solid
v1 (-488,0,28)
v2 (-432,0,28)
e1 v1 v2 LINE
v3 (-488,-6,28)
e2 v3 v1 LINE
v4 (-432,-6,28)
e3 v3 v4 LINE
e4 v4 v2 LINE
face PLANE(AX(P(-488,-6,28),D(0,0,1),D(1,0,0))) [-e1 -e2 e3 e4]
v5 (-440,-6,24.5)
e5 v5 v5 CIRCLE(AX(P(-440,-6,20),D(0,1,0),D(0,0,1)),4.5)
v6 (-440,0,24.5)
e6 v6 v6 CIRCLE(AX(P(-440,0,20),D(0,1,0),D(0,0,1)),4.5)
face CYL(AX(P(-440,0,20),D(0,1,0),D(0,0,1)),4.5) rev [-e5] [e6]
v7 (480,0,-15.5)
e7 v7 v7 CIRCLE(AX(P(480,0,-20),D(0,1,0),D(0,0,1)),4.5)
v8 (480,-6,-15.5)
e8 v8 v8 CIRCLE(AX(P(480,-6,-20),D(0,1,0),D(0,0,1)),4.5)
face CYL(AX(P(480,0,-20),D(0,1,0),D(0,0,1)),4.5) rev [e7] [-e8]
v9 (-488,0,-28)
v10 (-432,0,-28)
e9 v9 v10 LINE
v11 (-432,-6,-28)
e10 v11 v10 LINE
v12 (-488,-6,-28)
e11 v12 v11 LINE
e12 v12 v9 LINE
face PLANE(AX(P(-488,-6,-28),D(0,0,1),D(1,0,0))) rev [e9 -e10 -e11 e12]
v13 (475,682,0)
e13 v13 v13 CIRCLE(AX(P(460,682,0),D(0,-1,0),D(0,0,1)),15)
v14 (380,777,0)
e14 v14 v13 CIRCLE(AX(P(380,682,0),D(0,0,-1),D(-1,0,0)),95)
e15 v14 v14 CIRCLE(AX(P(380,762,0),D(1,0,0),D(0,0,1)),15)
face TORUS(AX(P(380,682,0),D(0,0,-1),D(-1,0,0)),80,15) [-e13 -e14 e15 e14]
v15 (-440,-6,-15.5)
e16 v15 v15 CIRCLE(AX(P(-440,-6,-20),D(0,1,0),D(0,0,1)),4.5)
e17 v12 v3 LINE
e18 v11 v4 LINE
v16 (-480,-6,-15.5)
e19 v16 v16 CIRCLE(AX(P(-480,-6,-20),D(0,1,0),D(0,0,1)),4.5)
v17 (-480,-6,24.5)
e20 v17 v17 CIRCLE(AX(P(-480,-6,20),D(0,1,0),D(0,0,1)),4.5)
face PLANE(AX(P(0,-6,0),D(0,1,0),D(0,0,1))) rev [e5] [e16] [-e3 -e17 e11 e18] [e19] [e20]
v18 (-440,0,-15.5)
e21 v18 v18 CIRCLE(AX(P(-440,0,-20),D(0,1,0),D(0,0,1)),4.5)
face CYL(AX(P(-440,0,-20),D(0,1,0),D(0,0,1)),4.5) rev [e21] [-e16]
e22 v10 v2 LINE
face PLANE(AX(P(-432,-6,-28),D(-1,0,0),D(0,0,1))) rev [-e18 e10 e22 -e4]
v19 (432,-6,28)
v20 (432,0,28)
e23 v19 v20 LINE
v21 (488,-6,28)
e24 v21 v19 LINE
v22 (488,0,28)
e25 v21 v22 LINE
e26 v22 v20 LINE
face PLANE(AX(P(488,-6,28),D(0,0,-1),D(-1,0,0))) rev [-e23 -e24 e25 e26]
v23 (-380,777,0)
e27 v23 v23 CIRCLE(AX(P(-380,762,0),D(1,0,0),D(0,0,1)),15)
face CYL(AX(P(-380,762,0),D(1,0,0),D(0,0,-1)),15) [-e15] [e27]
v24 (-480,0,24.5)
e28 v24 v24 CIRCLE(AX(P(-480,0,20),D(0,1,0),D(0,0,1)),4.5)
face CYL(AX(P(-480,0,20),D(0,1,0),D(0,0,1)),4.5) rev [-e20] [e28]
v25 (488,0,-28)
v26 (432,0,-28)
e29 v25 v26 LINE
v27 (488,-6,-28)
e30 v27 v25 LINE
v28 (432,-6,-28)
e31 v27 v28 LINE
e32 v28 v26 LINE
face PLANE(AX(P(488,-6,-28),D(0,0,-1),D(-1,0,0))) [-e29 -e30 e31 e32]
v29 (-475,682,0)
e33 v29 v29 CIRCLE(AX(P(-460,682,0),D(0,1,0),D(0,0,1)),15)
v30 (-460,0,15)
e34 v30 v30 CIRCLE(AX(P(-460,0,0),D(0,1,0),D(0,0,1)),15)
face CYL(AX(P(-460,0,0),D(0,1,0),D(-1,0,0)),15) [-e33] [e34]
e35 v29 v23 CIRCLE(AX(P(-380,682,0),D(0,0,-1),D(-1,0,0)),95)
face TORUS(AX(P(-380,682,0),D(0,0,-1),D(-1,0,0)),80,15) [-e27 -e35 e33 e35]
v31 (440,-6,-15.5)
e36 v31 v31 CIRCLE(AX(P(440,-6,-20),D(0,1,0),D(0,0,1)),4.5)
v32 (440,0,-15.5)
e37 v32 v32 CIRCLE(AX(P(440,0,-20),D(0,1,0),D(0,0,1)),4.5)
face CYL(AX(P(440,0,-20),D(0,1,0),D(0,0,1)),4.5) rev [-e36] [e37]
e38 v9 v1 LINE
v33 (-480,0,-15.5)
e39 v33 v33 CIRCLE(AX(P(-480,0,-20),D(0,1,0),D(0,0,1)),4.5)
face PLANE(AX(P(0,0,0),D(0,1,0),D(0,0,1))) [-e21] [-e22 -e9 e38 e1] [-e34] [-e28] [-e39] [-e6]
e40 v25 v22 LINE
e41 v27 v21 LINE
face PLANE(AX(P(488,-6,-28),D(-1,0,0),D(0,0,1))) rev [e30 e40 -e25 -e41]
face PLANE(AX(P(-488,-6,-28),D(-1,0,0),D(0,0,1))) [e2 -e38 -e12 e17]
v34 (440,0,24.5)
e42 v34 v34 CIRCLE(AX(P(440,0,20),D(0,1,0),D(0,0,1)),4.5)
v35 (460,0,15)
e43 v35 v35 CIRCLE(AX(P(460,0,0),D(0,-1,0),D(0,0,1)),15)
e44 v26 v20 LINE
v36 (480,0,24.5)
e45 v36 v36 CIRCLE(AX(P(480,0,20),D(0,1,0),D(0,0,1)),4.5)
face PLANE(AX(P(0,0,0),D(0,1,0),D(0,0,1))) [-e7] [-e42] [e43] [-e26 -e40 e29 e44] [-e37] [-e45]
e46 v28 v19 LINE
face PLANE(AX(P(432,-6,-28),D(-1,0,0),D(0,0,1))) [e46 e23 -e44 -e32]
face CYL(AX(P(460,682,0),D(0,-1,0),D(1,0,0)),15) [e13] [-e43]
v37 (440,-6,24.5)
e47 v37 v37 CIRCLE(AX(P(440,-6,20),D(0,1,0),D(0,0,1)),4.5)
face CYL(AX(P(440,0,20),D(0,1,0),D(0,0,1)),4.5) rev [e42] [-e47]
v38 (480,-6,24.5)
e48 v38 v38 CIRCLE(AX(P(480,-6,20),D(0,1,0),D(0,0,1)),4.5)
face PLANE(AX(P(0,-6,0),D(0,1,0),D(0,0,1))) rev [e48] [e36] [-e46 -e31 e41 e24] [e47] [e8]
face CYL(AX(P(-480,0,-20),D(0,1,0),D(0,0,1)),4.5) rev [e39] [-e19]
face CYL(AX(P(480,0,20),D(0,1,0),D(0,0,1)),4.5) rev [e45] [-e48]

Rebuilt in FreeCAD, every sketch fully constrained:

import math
import FreeCAD as App
import Part
import Sketcher
Q = App.Units.Quantity


def add_polygon(sketch, points):
    """Adds a closed chain of lines whose ends are joined by coincident constraints."""
    first, n = sketch.GeometryCount, len(points)
    for a, b in zip(points, points[1:] + points[:1]):
        sketch.addGeometry(Part.LineSegment(App.Vector(*a, 0), App.Vector(*b, 0)), False)
    for i in range(n):
        sketch.addConstraint(Sketcher.Constraint("Coincident", first + i, 2, first + (i + 1) % n, 1))

doc = App.newDocument("Part")
params = doc.addObject("Spreadsheet::Sheet", "Params")
for row, (alias, value) in enumerate([
    ("sketch1_diameter", "30 mm"),
    ("sketch2_radius", "80 mm"),
    ("sketch2_width", "760 mm"),
    ("sketch2_height", "682 mm"),
    ("sketch3_width", "56 mm"),
    ("pad1_length", "6 mm"),
    ("sketch4_width", "23 mm"),
    ("sketch4_height", "4.5 mm"),
    ("groove_angle", "360 deg"),
    ("linearpattern_pitch", "56.568542 mm"),
    ("linearpattern2_pitch", "40 mm"),
    ("linearpattern3_pitch", "40 mm"),
    ("sketch5_width", "23 mm"),
    ("sketch5_height", "4.5 mm"),
    ("groove2_angle", "360 deg"),
    ("sketch6_width", "23 mm"),
    ("sketch6_height", "4.5 mm"),
    ("groove3_angle", "360 deg"),
    ("sketch7_width", "23 mm"),
    ("sketch7_height", "4.5 mm"),
    ("groove4_angle", "360 deg"),
], start=1):
    params.set(f"A{row}", alias)
    params.set(f"B{row}", "=" + value)
    params.setAlias(f"B{row}", alias)

body = doc.addObject("PartDesign::Body", "Body")

# Sketch on XZ plane
sketch1 = body.newObject("Sketcher::SketchObject", "Sketch")
sketch1.AttachmentSupport = (doc.getObject("XZ_Plane"), [""])
sketch1.MapMode = "FlatFace"
sketch1.addGeometry(Part.Circle(App.Vector(-460, 0, 0), App.Vector(0, 0, 1), 15), False)
sketch1.addConstraint([
    Sketcher.Constraint("PointOnObject", 0, 3, -1),
    Sketcher.Constraint("Diameter", 0, Q("30 mm")),
    Sketcher.Constraint("DistanceX", 0, 3, -1, 1, Q("460 mm")),
])
sketch1.setExpression("Constraints[1]", "Params.sketch1_diameter")

# Sketch on XY plane
sketch2 = body.newObject("Sketcher::SketchObject", "Sketch001")
sketch2.AttachmentSupport = (doc.getObject("XY_Plane"), [""])
sketch2.MapMode = "FlatFace"
sketch2.addGeometry([
    Part.LineSegment(App.Vector(-460, 0, 0), App.Vector(-460, 682, 0)),  # 0
    Part.ArcOfCircle(Part.Circle(App.Vector(-380, 682, 0), App.Vector(0, 0, 1), 80), math.radians(90), math.radians(180)),  # 1
    Part.LineSegment(App.Vector(-380, 762, 0), App.Vector(380, 762, 0)),  # 2
    Part.ArcOfCircle(Part.Circle(App.Vector(380, 682, 0), App.Vector(0, 0, 1), 80), math.radians(0), math.radians(90)),  # 3
    Part.LineSegment(App.Vector(460, 682, 0), App.Vector(460, 0, 0)),  # 4
], False)
sketch2.addConstraint([
    Sketcher.Constraint("Tangent", 0, 2, 1, 2),
    Sketcher.Constraint("Tangent", 1, 1, 2, 1),
    Sketcher.Constraint("Tangent", 2, 2, 3, 2),
    Sketcher.Constraint("Tangent", 3, 1, 4, 1),
    Sketcher.Constraint("Vertical", 0),
    Sketcher.Constraint("Horizontal", 2),
    Sketcher.Constraint("Vertical", 4),
    Sketcher.Constraint("Equal", 1, 3),
    Sketcher.Constraint("Symmetric", 0, 1, 4, 2, -1, 1),
    Sketcher.Constraint("PointOnObject", 0, 1, -1),
    Sketcher.Constraint("Radius", 1, Q("80 mm")),
    Sketcher.Constraint("DistanceX", 2, 1, 2, 2, Q("760 mm")),
    Sketcher.Constraint("DistanceY", 0, 1, 0, 2, Q("682 mm")),
])
sketch2.setExpression("Constraints[10]", "Params.sketch2_radius")
sketch2.setExpression("Constraints[11]", "Params.sketch2_width")
sketch2.setExpression("Constraints[12]", "Params.sketch2_height")
doc.recompute()

additivepipe = body.newObject("PartDesign::AdditivePipe", "AdditivePipe")
additivepipe.Profile = sketch1
additivepipe.Spine = (sketch2, ["Edge1", "Edge2", "Edge3", "Edge4", "Edge5"])

# Sketch on XZ plane
sketch3 = body.newObject("Sketcher::SketchObject", "Sketch002")
sketch3.AttachmentSupport = (doc.getObject("XZ_Plane"), [""])
sketch3.MapMode = "FlatFace"
add_polygon(sketch3, [(-488, 28), (-488, -28), (-432, -28), (-432, 28)])  # lines 0-3
sketch3.addConstraint([
    Sketcher.Constraint("Vertical", 0),
    Sketcher.Constraint("Horizontal", 1),
    Sketcher.Constraint("Vertical", 2),
    Sketcher.Constraint("Horizontal", 3),
    Sketcher.Constraint("Equal", 3, 0),
    Sketcher.Constraint("DistanceX", 1, 1, 1, 2, Q("56 mm")),
    Sketcher.Constraint("DistanceX", 0, 2, -1, 1, Q("488 mm")),
    Sketcher.Constraint("DistanceY", 0, 2, -1, 1, Q("28 mm")),
])
sketch3.setExpression("Constraints[9]", "Params.sketch3_width")
pad1 = body.newObject("PartDesign::Pad", "Pad")
pad1.Profile = sketch3
pad1.setExpression("Length", "Params.pad1_length")

# Sketch on YZ plane
sketch4 = body.newObject("Sketcher::SketchObject", "Sketch003")
sketch4.AttachmentSupport = (doc.getObject("YZ_Plane"), [""])
sketch4.MapMode = "FlatFace"
sketch4.AttachmentOffset = App.Placement(App.Vector(0, 0, -440), App.Rotation())
add_polygon(sketch4, [(-25.7, 20), (0, 20), (0, 24.5), (-23, 24.5)])  # lines 0-3
sketch4.addGeometry(Part.LineSegment(App.Vector(0, 20, 0), App.Vector(-25.7, 20, 0)), True)  # axis
sketch4.addConstraint([
    Sketcher.Constraint("Horizontal", 0),
    Sketcher.Constraint("Vertical", 1),
    Sketcher.Constraint("Horizontal", 2),
    Sketcher.Constraint("Horizontal", 4),
    Sketcher.Constraint("Coincident", 4, 1, 0, 2),
    Sketcher.Constraint("PointOnObject", 0, 2, -2),
    Sketcher.Constraint("Equal", 0, 4),
    Sketcher.Constraint("DistanceX", 2, 2, 2, 1, Q("23 mm")),
    Sketcher.Constraint("Angle", 3, Q("-121 deg")),
    Sketcher.Constraint("DistanceY", 1, 1, 1, 2, Q("4.5 mm")),
    Sketcher.Constraint("DistanceY", -1, 1, 0, 2, Q("20 mm")),
])
sketch4.setExpression("Constraints[11]", "Params.sketch4_width")
sketch4.setExpression("Constraints[13]", "Params.sketch4_height")
groove = body.newObject("PartDesign::Groove", "Groove")
groove.Profile = sketch4
groove.ReferenceAxis = (sketch4, ["Axis0"])
groove.setExpression("Angle", "Params.groove_angle")
doc.recompute()

datumline = body.newObject("PartDesign::Line", "DatumLine")
datumline.Placement = App.Placement(App.Vector(0, 0, 0), App.Rotation(App.Vector(0, 0, 1), App.Vector(-0.707106781, 0, -0.707106781)))
linearpattern = body.newObject("PartDesign::LinearPattern", "LinearPattern")
linearpattern.Originals = [groove]
linearpattern.Direction = (datumline, [""])
linearpattern.Mode = "offset"
linearpattern.setExpression("Offset", "Params.linearpattern_pitch")
linearpattern.Occurrences = 2
body.Tip = linearpattern
doc.recompute()

linearpattern2 = body.newObject("PartDesign::LinearPattern", "LinearPattern001")
linearpattern2.Originals = [groove]
linearpattern2.Direction = (doc.getObject("X_Axis"), [""])
linearpattern2.Mode = "offset"
linearpattern2.setExpression("Offset", "Params.linearpattern2_pitch")
linearpattern2.Occurrences = 2
linearpattern2.Reversed = True
body.Tip = linearpattern2
doc.recompute()

linearpattern3 = body.newObject("PartDesign::LinearPattern", "LinearPattern002")
linearpattern3.Originals = [groove]
linearpattern3.Direction = (doc.getObject("Z_Axis"), [""])
linearpattern3.Mode = "offset"
linearpattern3.setExpression("Offset", "Params.linearpattern3_pitch")
linearpattern3.Occurrences = 2
linearpattern3.Reversed = True
body.Tip = linearpattern3
doc.recompute()

mirrored = body.newObject("PartDesign::Mirrored", "Mirrored")
mirrored.Originals = [pad1, groove]
mirrored.MirrorPlane = (doc.getObject("YZ_Plane"), [""])
body.Tip = mirrored

# Sketch on YZ plane
sketch5 = body.newObject("Sketcher::SketchObject", "Sketch004")
sketch5.AttachmentSupport = (doc.getObject("YZ_Plane"), [""])
sketch5.MapMode = "FlatFace"
sketch5.AttachmentOffset = App.Placement(App.Vector(0, 0, 480), App.Rotation())
add_polygon(sketch5, [(0, -20), (-25.7, -20), (-23, -15.5), (0, -15.5)])  # lines 0-3
sketch5.addGeometry(Part.LineSegment(App.Vector(-25.7, -20, 0), App.Vector(0, -20, 0)), True)  # axis
sketch5.addConstraint([
    Sketcher.Constraint("Horizontal", 0),
    Sketcher.Constraint("Horizontal", 2),
    Sketcher.Constraint("Vertical", 3),
    Sketcher.Constraint("Horizontal", 4),
    Sketcher.Constraint("Coincident", 4, 1, 0, 2),
    Sketcher.Constraint("PointOnObject", 2, 2, -2),
    Sketcher.Constraint("PointOnObject", 4, 2, -2),
    Sketcher.Constraint("DistanceX", 2, 1, 2, 2, Q("23 mm")),
    Sketcher.Constraint("Angle", 1, Q("59 deg")),
    Sketcher.Constraint("DistanceY", 3, 2, 3, 1, Q("4.5 mm")),
    Sketcher.Constraint("DistanceY", 0, 2, -1, 1, Q("20 mm")),
])
sketch5.setExpression("Constraints[11]", "Params.sketch5_width")
sketch5.setExpression("Constraints[13]", "Params.sketch5_height")
groove2 = body.newObject("PartDesign::Groove", "Groove001")
groove2.Profile = sketch5
groove2.ReferenceAxis = (sketch5, ["Axis0"])
groove2.setExpression("Angle", "Params.groove2_angle")

# Sketch on YZ plane
sketch6 = body.newObject("Sketcher::SketchObject", "Sketch005")
sketch6.AttachmentSupport = (doc.getObject("YZ_Plane"), [""])
sketch6.MapMode = "FlatFace"
sketch6.AttachmentOffset = App.Placement(App.Vector(0, 0, 480), App.Rotation())
add_polygon(sketch6, [(0, 20), (-25.7, 20), (-23, 24.5), (0, 24.5)])  # lines 0-3
sketch6.addGeometry(Part.LineSegment(App.Vector(-25.7, 20, 0), App.Vector(0, 20, 0)), True)  # axis
sketch6.addConstraint([
    Sketcher.Constraint("Horizontal", 0),
    Sketcher.Constraint("Horizontal", 2),
    Sketcher.Constraint("Vertical", 3),
    Sketcher.Constraint("Horizontal", 4),
    Sketcher.Constraint("Coincident", 4, 1, 0, 2),
    Sketcher.Constraint("PointOnObject", 2, 2, -2),
    Sketcher.Constraint("PointOnObject", 4, 2, -2),
    Sketcher.Constraint("DistanceX", 2, 1, 2, 2, Q("23 mm")),
    Sketcher.Constraint("Angle", 1, Q("59 deg")),
    Sketcher.Constraint("DistanceY", 3, 2, 3, 1, Q("4.5 mm")),
    Sketcher.Constraint("DistanceY", -1, 1, 0, 2, Q("20 mm")),
])
sketch6.setExpression("Constraints[11]", "Params.sketch6_width")
sketch6.setExpression("Constraints[13]", "Params.sketch6_height")
groove3 = body.newObject("PartDesign::Groove", "Groove002")
groove3.Profile = sketch6
groove3.ReferenceAxis = (sketch6, ["Axis0"])
groove3.setExpression("Angle", "Params.groove3_angle")

# Sketch on YZ plane
sketch7 = body.newObject("Sketcher::SketchObject", "Sketch006")
sketch7.AttachmentSupport = (doc.getObject("YZ_Plane"), [""])
sketch7.MapMode = "FlatFace"
sketch7.AttachmentOffset = App.Placement(App.Vector(0, 0, 440), App.Rotation())
add_polygon(sketch7, [(0, -20), (-25.7, -20), (-23, -15.5), (0, -15.5)])  # lines 0-3
sketch7.addGeometry(Part.LineSegment(App.Vector(-25.7, -20, 0), App.Vector(0, -20, 0)), True)  # axis
sketch7.addConstraint([
    Sketcher.Constraint("Horizontal", 0),
    Sketcher.Constraint("Horizontal", 2),
    Sketcher.Constraint("Vertical", 3),
    Sketcher.Constraint("Horizontal", 4),
    Sketcher.Constraint("Coincident", 4, 1, 0, 2),
    Sketcher.Constraint("PointOnObject", 2, 2, -2),
    Sketcher.Constraint("PointOnObject", 4, 2, -2),
    Sketcher.Constraint("DistanceX", 2, 1, 2, 2, Q("23 mm")),
    Sketcher.Constraint("Angle", 1, Q("59 deg")),
    Sketcher.Constraint("DistanceY", 3, 2, 3, 1, Q("4.5 mm")),
    Sketcher.Constraint("DistanceY", 0, 2, -1, 1, Q("20 mm")),
])
sketch7.setExpression("Constraints[11]", "Params.sketch7_width")
sketch7.setExpression("Constraints[13]", "Params.sketch7_height")
groove4 = body.newObject("PartDesign::Groove", "Groove003")
groove4.Profile = sketch7
groove4.ReferenceAxis = (sketch7, ["Axis0"])
groove4.setExpression("Angle", "Params.groove4_angle")

doc.recompute()
